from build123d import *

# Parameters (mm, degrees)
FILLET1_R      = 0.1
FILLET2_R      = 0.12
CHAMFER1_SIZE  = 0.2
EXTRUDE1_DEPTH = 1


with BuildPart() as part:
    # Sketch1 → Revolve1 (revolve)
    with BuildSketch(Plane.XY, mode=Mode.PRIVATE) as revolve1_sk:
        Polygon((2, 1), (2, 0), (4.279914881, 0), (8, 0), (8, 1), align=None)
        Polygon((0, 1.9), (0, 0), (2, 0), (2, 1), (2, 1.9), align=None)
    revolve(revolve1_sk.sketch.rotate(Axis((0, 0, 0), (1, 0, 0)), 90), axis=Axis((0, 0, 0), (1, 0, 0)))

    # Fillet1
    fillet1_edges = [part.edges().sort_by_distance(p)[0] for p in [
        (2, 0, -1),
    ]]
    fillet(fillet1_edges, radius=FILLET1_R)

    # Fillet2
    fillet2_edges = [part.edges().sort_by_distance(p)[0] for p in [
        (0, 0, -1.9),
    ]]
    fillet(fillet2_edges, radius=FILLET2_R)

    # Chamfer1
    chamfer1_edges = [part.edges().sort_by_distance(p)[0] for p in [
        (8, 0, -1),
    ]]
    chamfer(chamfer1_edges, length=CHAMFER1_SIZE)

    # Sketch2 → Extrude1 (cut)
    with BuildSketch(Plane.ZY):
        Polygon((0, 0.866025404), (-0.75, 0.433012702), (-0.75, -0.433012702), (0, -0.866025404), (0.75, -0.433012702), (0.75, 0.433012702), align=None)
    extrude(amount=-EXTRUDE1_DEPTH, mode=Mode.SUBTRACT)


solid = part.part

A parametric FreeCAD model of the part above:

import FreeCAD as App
import Part
import Sketcher

V = App.Vector
Q = App.Units.Quantity


def edges_at(feature, points):
    """Names of the edges that pass closest to the given points."""
    edges = feature.Shape.Edges
    near = lambda p: min(range(len(edges)), key=lambda i: edges[i].distToShape(Part.Vertex(*p))[0])
    return sorted({f"Edge{near(p) + 1}" for p in points})

doc = App.newDocument("Part")
body = doc.addObject("PartDesign::Body", "Body")

# Sketch on XY plane
sketch1 = body.newObject("Sketcher::SketchObject", "Sketch")
sketch1.AttachmentSupport = (doc.getObject("XY_Plane"), [""])
sketch1.MapMode = "FlatFace"
sketch1.addGeometry([
    Part.LineSegment(V(8, 0, 0), V(8, 1, 0)),  # 0
    Part.LineSegment(V(8, 1, 0), V(2, 1, 0)),  # 1
    Part.LineSegment(V(2, 1, 0), V(2, 1.9, 0)),  # 2
    Part.LineSegment(V(2, 1.9, 0), V(0, 1.9, 0)),  # 3
    Part.LineSegment(V(0, 1.9, 0), V(0, 0, 0)),  # 4
    Part.LineSegment(V(0, 0, 0), V(8, 0, 0)),  # 5
], False)
sketch1.addConstraint([
    Sketcher.Constraint("Coincident", 0, 2, 1, 1),
    Sketcher.Constraint("Coincident", 1, 2, 2, 1),
    Sketcher.Constraint("Coincident", 2, 2, 3, 1),
    Sketcher.Constraint("Coincident", 3, 2, 4, 1),
    Sketcher.Constraint("Coincident", 4, 2, 5, 1),
    Sketcher.Constraint("Coincident", 5, 2, 0, 1),
    Sketcher.Constraint("Vertical", 0),
    Sketcher.Constraint("Horizontal", 1),
    Sketcher.Constraint("Vertical", 2),
    Sketcher.Constraint("Horizontal", 3),
    Sketcher.Constraint("Vertical", 4),
    Sketcher.Constraint("Horizontal", 5),
    Sketcher.Constraint("Coincident", 4, 2, -1, 1),
    Sketcher.Constraint("DistanceX", 1, 2, 1, 1, 6.0),
    Sketcher.Constraint("DistanceX", 3, 2, 3, 1, 2.0),
    Sketcher.Constraint("DistanceY", 0, 1, 0, 2, 1.0),
    Sketcher.Constraint("DistanceY", 2, 1, 2, 2, 0.9),
])
revolution = body.newObject("PartDesign::Revolution", "Revolution")
revolution.Profile = sketch1
revolution.ReferenceAxis = (sketch1, ["H_Axis"])
revolution.Angle = 360
doc.recompute()

fillet = body.newObject("PartDesign::Fillet", "Fillet")
fillet.Base = (revolution, edges_at(revolution, [(2, 0, -1)]))
fillet.Radius = 0.1
doc.recompute()

fillet2 = body.newObject("PartDesign::Fillet", "Fillet001")
fillet2.Base = (fillet, edges_at(fillet, [(0, 0, -1.9)]))
fillet2.Radius = 0.12
doc.recompute()

chamfer = body.newObject("PartDesign::Chamfer", "Chamfer")
chamfer.Base = (fillet2, edges_at(fillet2, [(8, 0, -1)]))
chamfer.Size = 0.2

# Sketch on YZ plane
sketch2 = body.newObject("Sketcher::SketchObject", "Sketch001")
sketch2.AttachmentSupport = (doc.getObject("YZ_Plane"), [""])
sketch2.MapMode = "FlatFace"
sketch2.addGeometry([
    Part.LineSegment(V(0.9, 0, 0), V(0.4, -0.8, 0)),  # 0
    Part.LineSegment(V(0.4, -0.8, 0), V(-0.4, -0.8, 0)),  # 1
    Part.LineSegment(V(-0.4, -0.8, 0), V(-0.9, 0, 0)),  # 2
    Part.LineSegment(V(-0.9, 0, 0), V(-0.4, 0.8, 0)),  # 3
    Part.LineSegment(V(-0.4, 0.8, 0), V(0.4, 0.8, 0)),  # 4
    Part.LineSegment(V(0.4, 0.8, 0), V(0.9, 0, 0)),  # 5
], False)
sketch2.addConstraint([
    Sketcher.Constraint("Coincident", 0, 2, 1, 1),
    Sketcher.Constraint("Coincident", 1, 2, 2, 1),
    Sketcher.Constraint("Coincident", 2, 2, 3, 1),
    Sketcher.Constraint("Coincident", 3, 2, 4, 1),
    Sketcher.Constraint("Coincident", 4, 2, 5, 1),
    Sketcher.Constraint("Coincident", 5, 2, 0, 1),
    Sketcher.Constraint("Horizontal", 1),
    Sketcher.Constraint("Horizontal", 4),
    Sketcher.Constraint("Symmetric", 0, 2, 3, 2, -1, 1),
    Sketcher.Constraint("Symmetric", 2, 2, 5, 2, -1, 1),
    Sketcher.Constraint("PointOnObject", 2, 2, -1),
    Sketcher.Constraint("Parallel", 2, 5),
    Sketcher.Constraint("Vertical", 1, 2, 3, 2),
    Sketcher.Constraint("Angle", 0, Q("-120 deg")),
    Sketcher.Constraint("DistanceY", 1, 2, 3, 2, 1.5),
    Sketcher.Constraint("DistanceX", 1, 2, 1, 1, 0.866025),
])
pocket1 = body.newObject("PartDesign::Pocket", "Pocket")
pocket1.Profile = sketch2
pocket1.Length = 1
pocket1.Reversed = True

doc.recompute()
